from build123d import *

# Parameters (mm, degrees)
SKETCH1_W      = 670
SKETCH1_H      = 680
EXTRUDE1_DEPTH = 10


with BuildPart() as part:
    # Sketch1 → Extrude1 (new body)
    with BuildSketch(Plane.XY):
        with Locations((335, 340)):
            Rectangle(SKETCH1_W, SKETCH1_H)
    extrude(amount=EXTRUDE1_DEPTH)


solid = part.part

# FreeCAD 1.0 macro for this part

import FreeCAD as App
import Part
import Sketcher

V = App.Vector


def add_polygon(sketch, points):
    """Adds a closed chain of lines whose ends are joined by coincident constraints."""
    first, n = sketch.GeometryCount, len(points)
    for a, b in zip(points, points[1:] + points[:1]):
        sketch.addGeometry(Part.LineSegment(App.Vector(*a, 0), App.Vector(*b, 0)), False)
    for i in range(n):
        sketch.addConstraint(Sketcher.Constraint("Coincident", first + i, 2, first + (i + 1) % n, 1))

doc = App.newDocument("Part")
params = doc.addObject("Spreadsheet::Sheet", "Params")
for row, (alias, value) in enumerate([
    ("sketch1_width", "670 mm"),
    ("sketch1_height", "680 mm"),
    ("pad1_length", "10 mm"),
], start=1):
    params.set(f"A{row}", alias)
    params.set(f"B{row}", "=" + value)
    params.setAlias(f"B{row}", alias)

body = doc.addObject("PartDesign::Body", "Body")

sketch1 = body.newObject("Sketcher::SketchObject", "Sketch")
sketch1.AttachmentSupport = (doc.getObject("XY_Plane"), [""])
sketch1.MapMode = "FlatFace"
add_polygon(sketch1, [(0, 680), (0, 0), (670, 0), (670, 680)])
sketch1.addConstraint(Sketcher.Constraint("Vertical", 0))
sketch1.addConstraint(Sketcher.Constraint("Horizontal", 1))
sketch1.addConstraint(Sketcher.Constraint("Vertical", 2))
sketch1.addConstraint(Sketcher.Constraint("Horizontal", 3))
sketch1.addConstraint(Sketcher.Constraint("Coincident", 0, 2, -1, 1))
sketch1.addConstraint(Sketcher.Constraint("DistanceX", 1, 1, 1, 2, 670.0))
sketch1.addConstraint(Sketcher.Constraint("DistanceY", 0, 2, 0, 1, 680.0))
sketch1.setExpression("Constraints[9]", "Params.sketch1_width")
sketch1.setExpression("Constraints[10]", "Params.sketch1_height")
pad1 = body.newObject("PartDesign::Pad", "Pad")
pad1.Profile = sketch1
pad1.setExpression("Length", "Params.pad1_length")

doc.recompute()
